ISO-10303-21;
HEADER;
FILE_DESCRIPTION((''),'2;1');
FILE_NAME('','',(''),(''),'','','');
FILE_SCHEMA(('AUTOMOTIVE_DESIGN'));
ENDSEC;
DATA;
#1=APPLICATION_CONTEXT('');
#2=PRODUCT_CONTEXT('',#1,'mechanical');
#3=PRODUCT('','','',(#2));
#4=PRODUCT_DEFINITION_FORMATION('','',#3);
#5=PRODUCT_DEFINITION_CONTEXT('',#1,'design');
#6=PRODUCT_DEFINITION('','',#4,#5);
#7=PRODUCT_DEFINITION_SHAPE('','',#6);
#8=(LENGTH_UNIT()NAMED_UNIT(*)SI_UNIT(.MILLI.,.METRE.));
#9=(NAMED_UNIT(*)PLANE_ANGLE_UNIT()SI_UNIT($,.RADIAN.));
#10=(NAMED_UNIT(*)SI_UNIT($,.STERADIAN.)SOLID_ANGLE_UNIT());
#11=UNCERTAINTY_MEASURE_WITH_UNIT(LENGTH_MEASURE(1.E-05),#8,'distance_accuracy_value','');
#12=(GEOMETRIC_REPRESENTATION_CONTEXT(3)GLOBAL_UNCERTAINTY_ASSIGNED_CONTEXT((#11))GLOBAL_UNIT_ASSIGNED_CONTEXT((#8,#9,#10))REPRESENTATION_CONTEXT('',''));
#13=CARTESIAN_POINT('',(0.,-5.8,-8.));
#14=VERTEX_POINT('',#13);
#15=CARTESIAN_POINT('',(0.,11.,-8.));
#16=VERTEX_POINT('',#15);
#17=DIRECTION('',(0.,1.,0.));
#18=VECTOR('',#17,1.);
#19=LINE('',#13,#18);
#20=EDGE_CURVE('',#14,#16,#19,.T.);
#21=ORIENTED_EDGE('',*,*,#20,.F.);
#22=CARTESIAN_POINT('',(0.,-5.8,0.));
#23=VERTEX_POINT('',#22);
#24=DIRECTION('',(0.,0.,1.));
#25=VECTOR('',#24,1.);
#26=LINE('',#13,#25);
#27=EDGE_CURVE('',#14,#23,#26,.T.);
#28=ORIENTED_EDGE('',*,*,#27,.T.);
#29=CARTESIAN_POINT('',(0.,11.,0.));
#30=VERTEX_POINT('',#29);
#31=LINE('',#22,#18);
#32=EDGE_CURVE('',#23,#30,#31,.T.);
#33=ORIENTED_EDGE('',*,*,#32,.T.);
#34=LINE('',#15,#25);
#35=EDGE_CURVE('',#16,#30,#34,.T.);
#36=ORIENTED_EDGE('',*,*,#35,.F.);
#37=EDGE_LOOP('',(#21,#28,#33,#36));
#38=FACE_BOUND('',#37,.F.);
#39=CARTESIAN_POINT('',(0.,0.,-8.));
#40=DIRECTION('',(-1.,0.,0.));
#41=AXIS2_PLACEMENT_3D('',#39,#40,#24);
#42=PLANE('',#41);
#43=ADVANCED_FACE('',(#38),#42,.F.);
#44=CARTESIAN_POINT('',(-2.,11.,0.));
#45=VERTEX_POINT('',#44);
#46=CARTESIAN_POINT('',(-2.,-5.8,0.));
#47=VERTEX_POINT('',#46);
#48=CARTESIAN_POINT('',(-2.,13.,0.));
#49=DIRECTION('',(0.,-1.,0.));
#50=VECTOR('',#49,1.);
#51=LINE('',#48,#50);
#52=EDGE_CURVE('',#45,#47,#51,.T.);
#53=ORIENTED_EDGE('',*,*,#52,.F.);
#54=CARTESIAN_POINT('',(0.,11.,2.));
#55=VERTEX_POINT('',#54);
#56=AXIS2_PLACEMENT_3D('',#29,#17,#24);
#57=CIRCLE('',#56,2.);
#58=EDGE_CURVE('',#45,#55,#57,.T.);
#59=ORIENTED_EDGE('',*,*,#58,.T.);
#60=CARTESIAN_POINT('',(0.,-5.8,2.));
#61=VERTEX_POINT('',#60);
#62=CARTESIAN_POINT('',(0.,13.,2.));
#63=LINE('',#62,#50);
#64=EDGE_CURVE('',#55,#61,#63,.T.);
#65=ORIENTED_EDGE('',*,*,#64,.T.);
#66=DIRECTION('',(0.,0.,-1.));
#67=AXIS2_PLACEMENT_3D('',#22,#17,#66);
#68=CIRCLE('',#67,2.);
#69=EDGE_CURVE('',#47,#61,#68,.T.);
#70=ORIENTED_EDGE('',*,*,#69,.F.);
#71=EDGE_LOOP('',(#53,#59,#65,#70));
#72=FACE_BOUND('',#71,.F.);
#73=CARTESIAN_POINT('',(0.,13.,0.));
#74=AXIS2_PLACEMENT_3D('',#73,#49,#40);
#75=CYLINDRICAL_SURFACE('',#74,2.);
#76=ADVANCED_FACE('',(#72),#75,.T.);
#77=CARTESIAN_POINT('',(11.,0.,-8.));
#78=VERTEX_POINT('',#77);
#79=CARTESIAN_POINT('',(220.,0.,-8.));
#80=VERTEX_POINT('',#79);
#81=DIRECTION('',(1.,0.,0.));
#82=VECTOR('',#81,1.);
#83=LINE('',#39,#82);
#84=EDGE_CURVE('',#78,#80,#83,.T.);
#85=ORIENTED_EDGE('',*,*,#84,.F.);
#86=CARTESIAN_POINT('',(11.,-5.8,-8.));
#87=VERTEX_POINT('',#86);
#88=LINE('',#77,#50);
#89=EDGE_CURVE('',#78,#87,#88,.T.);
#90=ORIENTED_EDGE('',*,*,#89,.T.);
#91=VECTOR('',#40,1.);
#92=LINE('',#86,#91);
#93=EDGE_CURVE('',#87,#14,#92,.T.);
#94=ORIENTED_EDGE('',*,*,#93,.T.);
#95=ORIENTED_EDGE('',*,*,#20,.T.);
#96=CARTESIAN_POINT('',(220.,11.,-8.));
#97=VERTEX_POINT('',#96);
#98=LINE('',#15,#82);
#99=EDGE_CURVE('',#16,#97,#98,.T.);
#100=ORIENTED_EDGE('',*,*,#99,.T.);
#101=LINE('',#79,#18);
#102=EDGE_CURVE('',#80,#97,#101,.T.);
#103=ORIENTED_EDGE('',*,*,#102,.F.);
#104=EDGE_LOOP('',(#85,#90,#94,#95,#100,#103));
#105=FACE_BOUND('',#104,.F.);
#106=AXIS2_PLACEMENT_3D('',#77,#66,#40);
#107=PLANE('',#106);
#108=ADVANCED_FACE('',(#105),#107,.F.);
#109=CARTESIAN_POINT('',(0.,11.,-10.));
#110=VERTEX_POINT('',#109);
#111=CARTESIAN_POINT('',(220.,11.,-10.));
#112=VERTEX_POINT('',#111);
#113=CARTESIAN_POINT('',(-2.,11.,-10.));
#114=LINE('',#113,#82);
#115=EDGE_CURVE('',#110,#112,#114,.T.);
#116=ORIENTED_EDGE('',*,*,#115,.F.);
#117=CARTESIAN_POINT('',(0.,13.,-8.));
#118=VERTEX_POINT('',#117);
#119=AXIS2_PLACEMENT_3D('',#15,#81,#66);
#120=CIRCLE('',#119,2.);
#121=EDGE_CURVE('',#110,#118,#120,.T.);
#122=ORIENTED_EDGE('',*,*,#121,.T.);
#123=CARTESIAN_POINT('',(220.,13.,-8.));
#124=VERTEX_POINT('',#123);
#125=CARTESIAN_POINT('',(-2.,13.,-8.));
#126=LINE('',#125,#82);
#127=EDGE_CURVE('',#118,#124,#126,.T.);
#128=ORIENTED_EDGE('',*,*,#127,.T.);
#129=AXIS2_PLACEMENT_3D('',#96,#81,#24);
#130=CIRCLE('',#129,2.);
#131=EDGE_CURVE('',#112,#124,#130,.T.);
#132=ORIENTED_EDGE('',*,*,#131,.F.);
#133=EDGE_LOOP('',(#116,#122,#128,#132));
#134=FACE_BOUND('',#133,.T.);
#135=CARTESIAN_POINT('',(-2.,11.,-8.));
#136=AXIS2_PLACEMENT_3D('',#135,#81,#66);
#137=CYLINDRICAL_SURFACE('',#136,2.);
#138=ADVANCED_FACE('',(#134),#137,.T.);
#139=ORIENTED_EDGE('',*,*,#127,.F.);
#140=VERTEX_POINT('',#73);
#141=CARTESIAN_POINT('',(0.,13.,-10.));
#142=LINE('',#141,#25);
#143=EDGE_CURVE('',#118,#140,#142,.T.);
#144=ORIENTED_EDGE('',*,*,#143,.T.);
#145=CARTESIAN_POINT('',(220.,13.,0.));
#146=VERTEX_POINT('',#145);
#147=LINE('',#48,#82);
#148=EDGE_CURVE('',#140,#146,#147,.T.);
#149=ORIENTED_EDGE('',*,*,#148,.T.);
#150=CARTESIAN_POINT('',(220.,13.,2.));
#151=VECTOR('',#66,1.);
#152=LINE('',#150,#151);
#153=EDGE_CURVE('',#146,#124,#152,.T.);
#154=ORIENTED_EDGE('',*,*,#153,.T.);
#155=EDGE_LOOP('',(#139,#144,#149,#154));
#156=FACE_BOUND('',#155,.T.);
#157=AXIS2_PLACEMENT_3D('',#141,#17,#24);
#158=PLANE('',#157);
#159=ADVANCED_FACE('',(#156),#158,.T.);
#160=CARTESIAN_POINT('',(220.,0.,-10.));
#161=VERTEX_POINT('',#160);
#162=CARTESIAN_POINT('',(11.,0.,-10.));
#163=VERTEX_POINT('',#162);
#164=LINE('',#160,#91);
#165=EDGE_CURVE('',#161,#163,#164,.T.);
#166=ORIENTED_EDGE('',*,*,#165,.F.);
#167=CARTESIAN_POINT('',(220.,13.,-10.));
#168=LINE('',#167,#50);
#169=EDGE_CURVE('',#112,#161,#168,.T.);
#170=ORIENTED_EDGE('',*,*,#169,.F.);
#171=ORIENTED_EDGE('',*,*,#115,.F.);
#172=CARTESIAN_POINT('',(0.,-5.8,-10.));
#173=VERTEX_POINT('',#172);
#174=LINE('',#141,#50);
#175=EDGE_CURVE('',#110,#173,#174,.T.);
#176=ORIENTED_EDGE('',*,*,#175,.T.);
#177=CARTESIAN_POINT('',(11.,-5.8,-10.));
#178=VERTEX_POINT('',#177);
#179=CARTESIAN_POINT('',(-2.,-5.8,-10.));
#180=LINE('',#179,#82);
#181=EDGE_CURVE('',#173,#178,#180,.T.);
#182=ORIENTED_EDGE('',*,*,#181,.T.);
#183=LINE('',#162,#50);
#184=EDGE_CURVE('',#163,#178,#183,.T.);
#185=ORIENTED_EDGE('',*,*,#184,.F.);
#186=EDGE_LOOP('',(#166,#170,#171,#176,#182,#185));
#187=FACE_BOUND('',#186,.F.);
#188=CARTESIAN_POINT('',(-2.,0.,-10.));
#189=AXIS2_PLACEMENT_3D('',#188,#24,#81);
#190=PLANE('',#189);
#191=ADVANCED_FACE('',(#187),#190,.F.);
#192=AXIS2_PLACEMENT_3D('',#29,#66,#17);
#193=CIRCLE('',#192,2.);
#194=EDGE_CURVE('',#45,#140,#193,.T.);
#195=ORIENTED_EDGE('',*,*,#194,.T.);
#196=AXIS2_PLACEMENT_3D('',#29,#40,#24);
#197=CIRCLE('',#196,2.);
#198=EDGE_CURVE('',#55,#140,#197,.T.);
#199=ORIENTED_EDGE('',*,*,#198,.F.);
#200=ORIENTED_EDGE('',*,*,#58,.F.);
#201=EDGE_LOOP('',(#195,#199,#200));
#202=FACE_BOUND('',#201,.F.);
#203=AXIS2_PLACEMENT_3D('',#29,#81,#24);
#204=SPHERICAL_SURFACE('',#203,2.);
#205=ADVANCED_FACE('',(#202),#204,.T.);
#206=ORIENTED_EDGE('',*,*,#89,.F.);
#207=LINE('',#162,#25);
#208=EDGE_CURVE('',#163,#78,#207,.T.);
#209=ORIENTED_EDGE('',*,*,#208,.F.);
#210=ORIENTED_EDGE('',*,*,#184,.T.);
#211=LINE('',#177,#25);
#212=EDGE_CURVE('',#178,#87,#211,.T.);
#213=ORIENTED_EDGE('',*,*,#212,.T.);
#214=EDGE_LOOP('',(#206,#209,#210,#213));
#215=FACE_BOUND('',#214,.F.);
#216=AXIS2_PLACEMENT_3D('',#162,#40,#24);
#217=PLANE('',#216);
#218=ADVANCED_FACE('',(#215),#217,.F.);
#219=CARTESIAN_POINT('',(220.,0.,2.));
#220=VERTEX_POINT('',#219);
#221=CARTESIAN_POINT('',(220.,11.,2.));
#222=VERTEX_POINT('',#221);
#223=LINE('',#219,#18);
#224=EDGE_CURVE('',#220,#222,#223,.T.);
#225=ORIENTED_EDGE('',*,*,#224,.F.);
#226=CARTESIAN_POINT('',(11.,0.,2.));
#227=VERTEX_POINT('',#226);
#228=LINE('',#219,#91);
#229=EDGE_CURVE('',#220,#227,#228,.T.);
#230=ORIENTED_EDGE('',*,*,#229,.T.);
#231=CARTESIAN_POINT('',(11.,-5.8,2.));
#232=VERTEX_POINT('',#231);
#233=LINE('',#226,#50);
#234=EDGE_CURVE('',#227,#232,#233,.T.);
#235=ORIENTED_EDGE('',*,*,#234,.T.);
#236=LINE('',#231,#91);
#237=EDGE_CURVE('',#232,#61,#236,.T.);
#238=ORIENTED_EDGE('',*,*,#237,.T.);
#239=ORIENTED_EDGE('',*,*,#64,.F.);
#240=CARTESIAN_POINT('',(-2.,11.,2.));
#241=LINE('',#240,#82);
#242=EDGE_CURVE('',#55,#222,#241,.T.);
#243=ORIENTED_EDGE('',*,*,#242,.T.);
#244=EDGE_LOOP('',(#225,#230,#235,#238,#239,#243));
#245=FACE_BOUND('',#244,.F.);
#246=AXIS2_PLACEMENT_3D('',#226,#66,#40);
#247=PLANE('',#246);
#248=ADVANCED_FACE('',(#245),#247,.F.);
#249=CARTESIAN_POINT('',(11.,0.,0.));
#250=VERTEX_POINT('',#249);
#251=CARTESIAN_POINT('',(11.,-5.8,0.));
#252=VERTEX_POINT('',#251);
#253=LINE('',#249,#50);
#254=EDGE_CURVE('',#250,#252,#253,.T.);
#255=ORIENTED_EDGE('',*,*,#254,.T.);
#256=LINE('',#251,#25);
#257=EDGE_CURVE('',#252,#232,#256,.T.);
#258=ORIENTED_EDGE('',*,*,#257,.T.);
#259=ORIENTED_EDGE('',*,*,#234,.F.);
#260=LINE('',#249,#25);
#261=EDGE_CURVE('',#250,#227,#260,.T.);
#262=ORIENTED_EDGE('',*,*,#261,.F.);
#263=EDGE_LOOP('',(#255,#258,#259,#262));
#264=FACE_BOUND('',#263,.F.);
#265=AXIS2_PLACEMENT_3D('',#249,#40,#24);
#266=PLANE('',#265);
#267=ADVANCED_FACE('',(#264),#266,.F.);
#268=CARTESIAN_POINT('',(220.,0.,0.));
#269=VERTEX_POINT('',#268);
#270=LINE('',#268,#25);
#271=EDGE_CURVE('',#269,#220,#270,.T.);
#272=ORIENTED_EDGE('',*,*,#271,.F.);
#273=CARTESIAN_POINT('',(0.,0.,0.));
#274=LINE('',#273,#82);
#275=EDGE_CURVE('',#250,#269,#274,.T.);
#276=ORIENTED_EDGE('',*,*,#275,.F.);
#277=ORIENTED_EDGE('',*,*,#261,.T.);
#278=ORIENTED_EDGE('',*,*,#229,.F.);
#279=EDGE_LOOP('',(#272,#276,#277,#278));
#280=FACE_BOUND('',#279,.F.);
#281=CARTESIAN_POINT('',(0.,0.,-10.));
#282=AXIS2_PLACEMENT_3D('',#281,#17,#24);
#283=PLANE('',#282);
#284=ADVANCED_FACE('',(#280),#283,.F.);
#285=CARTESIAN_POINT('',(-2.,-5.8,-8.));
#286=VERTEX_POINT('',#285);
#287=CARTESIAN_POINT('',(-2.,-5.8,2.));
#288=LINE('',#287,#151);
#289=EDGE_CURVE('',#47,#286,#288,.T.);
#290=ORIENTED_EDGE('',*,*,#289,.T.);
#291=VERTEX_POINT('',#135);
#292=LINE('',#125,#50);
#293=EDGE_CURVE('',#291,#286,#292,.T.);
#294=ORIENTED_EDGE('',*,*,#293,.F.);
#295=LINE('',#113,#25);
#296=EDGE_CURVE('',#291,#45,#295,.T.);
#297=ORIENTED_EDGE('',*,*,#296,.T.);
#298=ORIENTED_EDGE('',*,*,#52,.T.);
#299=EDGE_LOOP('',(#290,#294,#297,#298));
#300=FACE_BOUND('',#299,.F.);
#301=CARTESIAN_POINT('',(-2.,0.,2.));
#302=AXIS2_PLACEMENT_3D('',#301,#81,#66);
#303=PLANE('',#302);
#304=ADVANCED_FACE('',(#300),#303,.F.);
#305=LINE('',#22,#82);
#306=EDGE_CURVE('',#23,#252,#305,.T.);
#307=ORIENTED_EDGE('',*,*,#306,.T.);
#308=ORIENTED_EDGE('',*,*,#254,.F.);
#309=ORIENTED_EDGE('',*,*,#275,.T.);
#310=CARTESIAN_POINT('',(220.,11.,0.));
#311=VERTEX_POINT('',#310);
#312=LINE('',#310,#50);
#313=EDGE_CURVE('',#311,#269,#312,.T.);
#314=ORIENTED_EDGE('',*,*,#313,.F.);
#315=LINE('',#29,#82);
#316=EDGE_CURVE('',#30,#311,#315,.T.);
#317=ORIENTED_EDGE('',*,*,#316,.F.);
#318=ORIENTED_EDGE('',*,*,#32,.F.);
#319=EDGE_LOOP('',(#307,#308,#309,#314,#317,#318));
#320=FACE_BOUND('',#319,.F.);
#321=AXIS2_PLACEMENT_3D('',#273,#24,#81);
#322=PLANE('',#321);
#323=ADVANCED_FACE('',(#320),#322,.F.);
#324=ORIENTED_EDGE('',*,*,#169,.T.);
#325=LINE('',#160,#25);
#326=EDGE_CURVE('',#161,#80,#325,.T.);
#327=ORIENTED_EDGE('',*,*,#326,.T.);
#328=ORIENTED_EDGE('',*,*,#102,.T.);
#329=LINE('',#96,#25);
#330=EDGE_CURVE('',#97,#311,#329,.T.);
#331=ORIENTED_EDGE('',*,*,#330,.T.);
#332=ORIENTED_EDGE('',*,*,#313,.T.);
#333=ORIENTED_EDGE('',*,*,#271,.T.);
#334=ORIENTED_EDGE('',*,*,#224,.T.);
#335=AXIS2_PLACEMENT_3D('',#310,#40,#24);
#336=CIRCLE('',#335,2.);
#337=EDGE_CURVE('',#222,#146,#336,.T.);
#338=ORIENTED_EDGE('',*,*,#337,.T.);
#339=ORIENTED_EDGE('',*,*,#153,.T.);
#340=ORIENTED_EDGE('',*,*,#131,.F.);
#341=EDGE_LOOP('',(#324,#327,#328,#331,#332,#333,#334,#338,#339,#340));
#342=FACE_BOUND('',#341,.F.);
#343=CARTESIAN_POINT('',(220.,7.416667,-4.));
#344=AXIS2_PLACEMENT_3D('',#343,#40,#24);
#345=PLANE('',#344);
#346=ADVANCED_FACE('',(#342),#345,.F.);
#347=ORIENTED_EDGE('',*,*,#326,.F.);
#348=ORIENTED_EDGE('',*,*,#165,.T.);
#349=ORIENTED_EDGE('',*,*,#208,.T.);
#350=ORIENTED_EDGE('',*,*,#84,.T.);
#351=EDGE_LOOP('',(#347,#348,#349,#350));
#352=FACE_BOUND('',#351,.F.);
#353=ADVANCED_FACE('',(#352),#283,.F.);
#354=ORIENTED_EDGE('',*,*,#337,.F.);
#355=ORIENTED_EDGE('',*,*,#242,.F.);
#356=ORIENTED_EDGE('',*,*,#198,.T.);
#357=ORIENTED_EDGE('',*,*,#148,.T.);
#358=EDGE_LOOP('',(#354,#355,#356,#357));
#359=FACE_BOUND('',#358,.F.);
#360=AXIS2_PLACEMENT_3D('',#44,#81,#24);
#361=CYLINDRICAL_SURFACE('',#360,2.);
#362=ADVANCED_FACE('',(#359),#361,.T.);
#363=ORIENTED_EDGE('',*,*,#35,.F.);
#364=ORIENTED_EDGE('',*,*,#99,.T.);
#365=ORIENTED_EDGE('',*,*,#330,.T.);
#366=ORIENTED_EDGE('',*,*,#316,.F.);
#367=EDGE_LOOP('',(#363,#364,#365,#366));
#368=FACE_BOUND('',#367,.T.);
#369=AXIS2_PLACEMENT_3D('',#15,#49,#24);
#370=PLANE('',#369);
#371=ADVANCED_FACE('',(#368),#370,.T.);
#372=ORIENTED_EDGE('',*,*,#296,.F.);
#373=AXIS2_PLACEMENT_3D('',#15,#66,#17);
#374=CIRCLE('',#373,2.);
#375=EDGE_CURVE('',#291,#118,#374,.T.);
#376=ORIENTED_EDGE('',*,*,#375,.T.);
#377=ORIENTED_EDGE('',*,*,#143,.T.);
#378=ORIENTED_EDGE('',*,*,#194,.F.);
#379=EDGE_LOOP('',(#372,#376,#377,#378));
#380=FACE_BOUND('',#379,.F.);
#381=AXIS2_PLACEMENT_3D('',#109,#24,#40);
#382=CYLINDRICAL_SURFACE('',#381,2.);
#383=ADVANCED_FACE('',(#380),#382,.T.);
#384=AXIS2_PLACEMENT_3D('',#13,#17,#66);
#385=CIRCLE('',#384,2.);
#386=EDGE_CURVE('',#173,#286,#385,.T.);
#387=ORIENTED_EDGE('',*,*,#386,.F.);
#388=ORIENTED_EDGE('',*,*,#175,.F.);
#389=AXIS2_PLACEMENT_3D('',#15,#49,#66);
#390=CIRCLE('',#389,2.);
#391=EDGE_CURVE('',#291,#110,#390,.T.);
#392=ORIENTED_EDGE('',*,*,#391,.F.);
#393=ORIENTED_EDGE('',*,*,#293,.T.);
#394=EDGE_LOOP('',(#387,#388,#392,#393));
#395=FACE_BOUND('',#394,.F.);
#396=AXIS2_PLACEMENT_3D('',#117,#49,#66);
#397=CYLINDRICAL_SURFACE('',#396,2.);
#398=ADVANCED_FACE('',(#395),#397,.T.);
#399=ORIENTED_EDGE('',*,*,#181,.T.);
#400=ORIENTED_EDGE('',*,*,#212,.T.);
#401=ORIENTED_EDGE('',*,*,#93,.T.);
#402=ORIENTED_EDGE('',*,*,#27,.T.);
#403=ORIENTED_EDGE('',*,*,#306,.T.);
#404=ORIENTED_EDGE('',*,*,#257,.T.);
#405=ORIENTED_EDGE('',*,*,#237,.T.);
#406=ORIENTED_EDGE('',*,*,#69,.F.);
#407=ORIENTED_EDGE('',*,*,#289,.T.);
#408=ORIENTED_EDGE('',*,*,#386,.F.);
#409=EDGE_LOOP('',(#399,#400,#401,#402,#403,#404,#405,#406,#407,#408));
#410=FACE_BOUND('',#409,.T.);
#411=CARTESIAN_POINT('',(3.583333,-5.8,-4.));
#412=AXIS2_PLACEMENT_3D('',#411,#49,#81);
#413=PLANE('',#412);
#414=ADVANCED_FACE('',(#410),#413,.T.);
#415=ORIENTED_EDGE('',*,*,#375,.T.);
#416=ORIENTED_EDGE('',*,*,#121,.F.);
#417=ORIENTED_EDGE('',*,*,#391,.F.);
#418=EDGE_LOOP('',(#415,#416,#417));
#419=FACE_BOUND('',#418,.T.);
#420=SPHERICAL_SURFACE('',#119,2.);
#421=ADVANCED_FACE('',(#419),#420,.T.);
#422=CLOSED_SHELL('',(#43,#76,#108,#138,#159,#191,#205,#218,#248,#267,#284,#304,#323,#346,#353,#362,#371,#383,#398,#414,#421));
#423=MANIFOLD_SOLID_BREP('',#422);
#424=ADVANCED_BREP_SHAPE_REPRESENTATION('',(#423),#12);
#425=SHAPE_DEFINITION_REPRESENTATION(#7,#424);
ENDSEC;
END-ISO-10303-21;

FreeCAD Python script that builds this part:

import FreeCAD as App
import Part
import Sketcher
Q = App.Units.Quantity


def edges_at(feature, points):
    """Names of the edges that pass closest to the given points."""
    edges = feature.Shape.Edges
    near = lambda p: min(range(len(edges)), key=lambda i: edges[i].distToShape(Part.Vertex(*p))[0])
    return sorted({f"Edge{near(p) + 1}" for p in points})

doc = App.newDocument("Part")
body = doc.addObject("PartDesign::Body", "Body")

# Sketch on YZ plane
sketch1 = body.newObject("Sketcher::SketchObject", "Sketch")
sketch1.AttachmentSupport = (doc.getObject("YZ_Plane"), [""])
sketch1.MapMode = "FlatFace"
sketch1.addGeometry(Part.LineSegment(App.Vector(11, -8, 0), App.Vector(0, -8, 0)), False)
sketch1.addGeometry(Part.LineSegment(App.Vector(0, -8, 0), App.Vector(0, -10, 0)), False)
sketch1.addGeometry(Part.LineSegment(App.Vector(0, -10, 0), App.Vector(13, -10, 0)), False)
sketch1.addGeometry(Part.LineSegment(App.Vector(13, -10, 0), App.Vector(13, 2, 0)), False)
sketch1.addGeometry(Part.LineSegment(App.Vector(13, 2, 0), App.Vector(0, 2, 0)), False)
sketch1.addGeometry(Part.LineSegment(App.Vector(0, 2, 0), App.Vector(0, 0, 0)), False)
sketch1.addGeometry(Part.LineSegment(App.Vector(0, 0, 0), App.Vector(11, 0, 0)), False)
sketch1.addGeometry(Part.LineSegment(App.Vector(11, 0, 0), App.Vector(11, -8, 0)), False)
sketch1.addConstraint(Sketcher.Constraint("Coincident", 0, 2, 1, 1))
sketch1.addConstraint(Sketcher.Constraint("Coincident", 1, 2, 2, 1))
sketch1.addConstraint(Sketcher.Constraint("Coincident", 2, 2, 3, 1))
sketch1.addConstraint(Sketcher.Constraint("Coincident", 3, 2, 4, 1))
sketch1.addConstraint(Sketcher.Constraint("Coincident", 4, 2, 5, 1))
sketch1.addConstraint(Sketcher.Constraint("Coincident", 5, 2, 6, 1))
sketch1.addConstraint(Sketcher.Constraint("Coincident", 6, 2, 7, 1))
sketch1.addConstraint(Sketcher.Constraint("Coincident", 7, 2, 0, 1))
sketch1.addConstraint(Sketcher.Constraint("Horizontal", 0))
sketch1.addConstraint(Sketcher.Constraint("Vertical", 1))
sketch1.addConstraint(Sketcher.Constraint("Horizontal", 2))
sketch1.addConstraint(Sketcher.Constraint("Vertical", 3))
sketch1.addConstraint(Sketcher.Constraint("Horizontal", 4))
sketch1.addConstraint(Sketcher.Constraint("Vertical", 5))
sketch1.addConstraint(Sketcher.Constraint("Horizontal", 6))
sketch1.addConstraint(Sketcher.Constraint("Vertical", 7))
sketch1.addConstraint(Sketcher.Constraint("Coincident", 5, 2, -1, 1))
sketch1.addConstraint(Sketcher.Constraint("PointOnObject", 0, 2, -2))
sketch1.addConstraint(Sketcher.Constraint("Equal", 1, 5))
sketch1.addConstraint(Sketcher.Constraint("DistanceX", 0, 2, 0, 1, Q("11 mm")))
sketch1.addConstraint(Sketcher.Constraint("DistanceX", 2, 1, 2, 2, Q("13 mm")))
sketch1.addConstraint(Sketcher.Constraint("DistanceY", 1, 2, 1, 1, Q("2 mm")))
sketch1.addConstraint(Sketcher.Constraint("DistanceY", 3, 1, 3, 2, Q("12 mm")))
pad1 = body.newObject("PartDesign::Pad", "Pad")
pad1.Profile = sketch1
pad1.Length = 220

# Sketch on YZ plane
sketch2 = body.newObject("Sketcher::SketchObject", "Sketch001")
sketch2.AttachmentSupport = (doc.getObject("YZ_Plane"), [""])
sketch2.MapMode = "FlatFace"
sketch2.addGeometry(Part.LineSegment(App.Vector(13, -10, 0), App.Vector(0, -10, 0)), False)
sketch2.addGeometry(Part.LineSegment(App.Vector(0, -10, 0), App.Vector(0, 2, 0)), False)
sketch2.addGeometry(Part.LineSegment(App.Vector(0, 2, 0), App.Vector(13, 2, 0)), False)
sketch2.addGeometry(Part.LineSegment(App.Vector(13, 2, 0), App.Vector(13, -10, 0)), False)
sketch2.addConstraint(Sketcher.Constraint("Coincident", 0, 2, 1, 1))
sketch2.addConstraint(Sketcher.Constraint("Coincident", 1, 2, 2, 1))
sketch2.addConstraint(Sketcher.Constraint("Coincident", 2, 2, 3, 1))
sketch2.addConstraint(Sketcher.Constraint("Coincident", 3, 2, 0, 1))
sketch2.addConstraint(Sketcher.Constraint("Horizontal", 0))
sketch2.addConstraint(Sketcher.Constraint("Vertical", 1))
sketch2.addConstraint(Sketcher.Constraint("Horizontal", 2))
sketch2.addConstraint(Sketcher.Constraint("Vertical", 3))
sketch2.addConstraint(Sketcher.Constraint("PointOnObject", 0, 2, -2))
sketch2.addConstraint(Sketcher.Constraint("DistanceX", 0, 2, 0, 1, Q("13 mm")))
sketch2.addConstraint(Sketcher.Constraint("DistanceY", 1, 1, 1, 2, Q("12 mm")))
sketch2.addConstraint(Sketcher.Constraint("DistanceY", 0, 2, -1, 1, Q("10 mm")))
pad2 = body.newObject("PartDesign::Pad", "Pad001")
pad2.Profile = sketch2
pad2.Length = 2
pad2.Reversed = True

# Sketch on XZ plane
sketch3 = body.newObject("Sketcher::SketchObject", "Sketch002")
sketch3.AttachmentSupport = (doc.getObject("XZ_Plane"), [""])
sketch3.MapMode = "FlatFace"
sketch3.addGeometry(Part.LineSegment(App.Vector(0, 0, 0), App.Vector(11, 0, 0)), False)
sketch3.addGeometry(Part.LineSegment(App.Vector(11, 0, 0), App.Vector(11, 2, 0)), False)
sketch3.addGeometry(Part.LineSegment(App.Vector(11, 2, 0), App.Vector(-2, 2, 0)), False)
sketch3.addGeometry(Part.LineSegment(App.Vector(-2, 2, 0), App.Vector(-2, -10, 0)), False)
sketch3.addGeometry(Part.LineSegment(App.Vector(-2, -10, 0), App.Vector(11, -10, 0)), False)
sketch3.addGeometry(Part.LineSegment(App.Vector(11, -10, 0), App.Vector(11, -8, 0)), False)
sketch3.addGeometry(Part.LineSegment(App.Vector(11, -8, 0), App.Vector(0, -8, 0)), False)
sketch3.addGeometry(Part.LineSegment(App.Vector(0, -8, 0), App.Vector(0, 0, 0)), False)
sketch3.addConstraint(Sketcher.Constraint("Coincident", 0, 2, 1, 1))
sketch3.addConstraint(Sketcher.Constraint("Coincident", 1, 2, 2, 1))
sketch3.addConstraint(Sketcher.Constraint("Coincident", 2, 2, 3, 1))
sketch3.addConstraint(Sketcher.Constraint("Coincident", 3, 2, 4, 1))
sketch3.addConstraint(Sketcher.Constraint("Coincident", 4, 2, 5, 1))
sketch3.addConstraint(Sketcher.Constraint("Coincident", 5, 2, 6, 1))
sketch3.addConstraint(Sketcher.Constraint("Coincident", 6, 2, 7, 1))
sketch3.addConstraint(Sketcher.Constraint("Coincident", 7, 2, 0, 1))
sketch3.addConstraint(Sketcher.Constraint("Horizontal", 0))
sketch3.addConstraint(Sketcher.Constraint("Vertical", 1))
sketch3.addConstraint(Sketcher.Constraint("Horizontal", 2))
sketch3.addConstraint(Sketcher.Constraint("Vertical", 3))
sketch3.addConstraint(Sketcher.Constraint("Horizontal", 4))
sketch3.addConstraint(Sketcher.Constraint("Vertical", 5))
sketch3.addConstraint(Sketcher.Constraint("Horizontal", 6))
sketch3.addConstraint(Sketcher.Constraint("Vertical", 7))
sketch3.addConstraint(Sketcher.Constraint("Coincident", 7, 2, -1, 1))
sketch3.addConstraint(Sketcher.Constraint("Vertical", 1, 2, 4, 2))
sketch3.addConstraint(Sketcher.Constraint("Equal", 1, 5))
sketch3.addConstraint(Sketcher.Constraint("DistanceX", 0, 1, 0, 2, Q("11 mm")))
sketch3.addConstraint(Sketcher.Constraint("DistanceX", 2, 2, 2, 1, Q("13 mm")))
sketch3.addConstraint(Sketcher.Constraint("DistanceY", 1, 1, 1, 2, Q("2 mm")))
sketch3.addConstraint(Sketcher.Constraint("DistanceY", 3, 2, 3, 1, Q("12 mm")))
pad3 = body.newObject("PartDesign::Pad", "Pad002")
pad3.Profile = sketch3
pad3.Length = 5.8
doc.recompute()

fillet = body.newObject("PartDesign::Fillet", "Fillet")
fillet.Base = (pad3, edges_at(pad3, [
    (109, 13, 2),
    (109, 13, -10),
    (-2, 3.6, -10),
    (-2, 3.6, 2),
    (-2, 13, -4),
]))
fillet.Radius = 2

doc.recompute()
